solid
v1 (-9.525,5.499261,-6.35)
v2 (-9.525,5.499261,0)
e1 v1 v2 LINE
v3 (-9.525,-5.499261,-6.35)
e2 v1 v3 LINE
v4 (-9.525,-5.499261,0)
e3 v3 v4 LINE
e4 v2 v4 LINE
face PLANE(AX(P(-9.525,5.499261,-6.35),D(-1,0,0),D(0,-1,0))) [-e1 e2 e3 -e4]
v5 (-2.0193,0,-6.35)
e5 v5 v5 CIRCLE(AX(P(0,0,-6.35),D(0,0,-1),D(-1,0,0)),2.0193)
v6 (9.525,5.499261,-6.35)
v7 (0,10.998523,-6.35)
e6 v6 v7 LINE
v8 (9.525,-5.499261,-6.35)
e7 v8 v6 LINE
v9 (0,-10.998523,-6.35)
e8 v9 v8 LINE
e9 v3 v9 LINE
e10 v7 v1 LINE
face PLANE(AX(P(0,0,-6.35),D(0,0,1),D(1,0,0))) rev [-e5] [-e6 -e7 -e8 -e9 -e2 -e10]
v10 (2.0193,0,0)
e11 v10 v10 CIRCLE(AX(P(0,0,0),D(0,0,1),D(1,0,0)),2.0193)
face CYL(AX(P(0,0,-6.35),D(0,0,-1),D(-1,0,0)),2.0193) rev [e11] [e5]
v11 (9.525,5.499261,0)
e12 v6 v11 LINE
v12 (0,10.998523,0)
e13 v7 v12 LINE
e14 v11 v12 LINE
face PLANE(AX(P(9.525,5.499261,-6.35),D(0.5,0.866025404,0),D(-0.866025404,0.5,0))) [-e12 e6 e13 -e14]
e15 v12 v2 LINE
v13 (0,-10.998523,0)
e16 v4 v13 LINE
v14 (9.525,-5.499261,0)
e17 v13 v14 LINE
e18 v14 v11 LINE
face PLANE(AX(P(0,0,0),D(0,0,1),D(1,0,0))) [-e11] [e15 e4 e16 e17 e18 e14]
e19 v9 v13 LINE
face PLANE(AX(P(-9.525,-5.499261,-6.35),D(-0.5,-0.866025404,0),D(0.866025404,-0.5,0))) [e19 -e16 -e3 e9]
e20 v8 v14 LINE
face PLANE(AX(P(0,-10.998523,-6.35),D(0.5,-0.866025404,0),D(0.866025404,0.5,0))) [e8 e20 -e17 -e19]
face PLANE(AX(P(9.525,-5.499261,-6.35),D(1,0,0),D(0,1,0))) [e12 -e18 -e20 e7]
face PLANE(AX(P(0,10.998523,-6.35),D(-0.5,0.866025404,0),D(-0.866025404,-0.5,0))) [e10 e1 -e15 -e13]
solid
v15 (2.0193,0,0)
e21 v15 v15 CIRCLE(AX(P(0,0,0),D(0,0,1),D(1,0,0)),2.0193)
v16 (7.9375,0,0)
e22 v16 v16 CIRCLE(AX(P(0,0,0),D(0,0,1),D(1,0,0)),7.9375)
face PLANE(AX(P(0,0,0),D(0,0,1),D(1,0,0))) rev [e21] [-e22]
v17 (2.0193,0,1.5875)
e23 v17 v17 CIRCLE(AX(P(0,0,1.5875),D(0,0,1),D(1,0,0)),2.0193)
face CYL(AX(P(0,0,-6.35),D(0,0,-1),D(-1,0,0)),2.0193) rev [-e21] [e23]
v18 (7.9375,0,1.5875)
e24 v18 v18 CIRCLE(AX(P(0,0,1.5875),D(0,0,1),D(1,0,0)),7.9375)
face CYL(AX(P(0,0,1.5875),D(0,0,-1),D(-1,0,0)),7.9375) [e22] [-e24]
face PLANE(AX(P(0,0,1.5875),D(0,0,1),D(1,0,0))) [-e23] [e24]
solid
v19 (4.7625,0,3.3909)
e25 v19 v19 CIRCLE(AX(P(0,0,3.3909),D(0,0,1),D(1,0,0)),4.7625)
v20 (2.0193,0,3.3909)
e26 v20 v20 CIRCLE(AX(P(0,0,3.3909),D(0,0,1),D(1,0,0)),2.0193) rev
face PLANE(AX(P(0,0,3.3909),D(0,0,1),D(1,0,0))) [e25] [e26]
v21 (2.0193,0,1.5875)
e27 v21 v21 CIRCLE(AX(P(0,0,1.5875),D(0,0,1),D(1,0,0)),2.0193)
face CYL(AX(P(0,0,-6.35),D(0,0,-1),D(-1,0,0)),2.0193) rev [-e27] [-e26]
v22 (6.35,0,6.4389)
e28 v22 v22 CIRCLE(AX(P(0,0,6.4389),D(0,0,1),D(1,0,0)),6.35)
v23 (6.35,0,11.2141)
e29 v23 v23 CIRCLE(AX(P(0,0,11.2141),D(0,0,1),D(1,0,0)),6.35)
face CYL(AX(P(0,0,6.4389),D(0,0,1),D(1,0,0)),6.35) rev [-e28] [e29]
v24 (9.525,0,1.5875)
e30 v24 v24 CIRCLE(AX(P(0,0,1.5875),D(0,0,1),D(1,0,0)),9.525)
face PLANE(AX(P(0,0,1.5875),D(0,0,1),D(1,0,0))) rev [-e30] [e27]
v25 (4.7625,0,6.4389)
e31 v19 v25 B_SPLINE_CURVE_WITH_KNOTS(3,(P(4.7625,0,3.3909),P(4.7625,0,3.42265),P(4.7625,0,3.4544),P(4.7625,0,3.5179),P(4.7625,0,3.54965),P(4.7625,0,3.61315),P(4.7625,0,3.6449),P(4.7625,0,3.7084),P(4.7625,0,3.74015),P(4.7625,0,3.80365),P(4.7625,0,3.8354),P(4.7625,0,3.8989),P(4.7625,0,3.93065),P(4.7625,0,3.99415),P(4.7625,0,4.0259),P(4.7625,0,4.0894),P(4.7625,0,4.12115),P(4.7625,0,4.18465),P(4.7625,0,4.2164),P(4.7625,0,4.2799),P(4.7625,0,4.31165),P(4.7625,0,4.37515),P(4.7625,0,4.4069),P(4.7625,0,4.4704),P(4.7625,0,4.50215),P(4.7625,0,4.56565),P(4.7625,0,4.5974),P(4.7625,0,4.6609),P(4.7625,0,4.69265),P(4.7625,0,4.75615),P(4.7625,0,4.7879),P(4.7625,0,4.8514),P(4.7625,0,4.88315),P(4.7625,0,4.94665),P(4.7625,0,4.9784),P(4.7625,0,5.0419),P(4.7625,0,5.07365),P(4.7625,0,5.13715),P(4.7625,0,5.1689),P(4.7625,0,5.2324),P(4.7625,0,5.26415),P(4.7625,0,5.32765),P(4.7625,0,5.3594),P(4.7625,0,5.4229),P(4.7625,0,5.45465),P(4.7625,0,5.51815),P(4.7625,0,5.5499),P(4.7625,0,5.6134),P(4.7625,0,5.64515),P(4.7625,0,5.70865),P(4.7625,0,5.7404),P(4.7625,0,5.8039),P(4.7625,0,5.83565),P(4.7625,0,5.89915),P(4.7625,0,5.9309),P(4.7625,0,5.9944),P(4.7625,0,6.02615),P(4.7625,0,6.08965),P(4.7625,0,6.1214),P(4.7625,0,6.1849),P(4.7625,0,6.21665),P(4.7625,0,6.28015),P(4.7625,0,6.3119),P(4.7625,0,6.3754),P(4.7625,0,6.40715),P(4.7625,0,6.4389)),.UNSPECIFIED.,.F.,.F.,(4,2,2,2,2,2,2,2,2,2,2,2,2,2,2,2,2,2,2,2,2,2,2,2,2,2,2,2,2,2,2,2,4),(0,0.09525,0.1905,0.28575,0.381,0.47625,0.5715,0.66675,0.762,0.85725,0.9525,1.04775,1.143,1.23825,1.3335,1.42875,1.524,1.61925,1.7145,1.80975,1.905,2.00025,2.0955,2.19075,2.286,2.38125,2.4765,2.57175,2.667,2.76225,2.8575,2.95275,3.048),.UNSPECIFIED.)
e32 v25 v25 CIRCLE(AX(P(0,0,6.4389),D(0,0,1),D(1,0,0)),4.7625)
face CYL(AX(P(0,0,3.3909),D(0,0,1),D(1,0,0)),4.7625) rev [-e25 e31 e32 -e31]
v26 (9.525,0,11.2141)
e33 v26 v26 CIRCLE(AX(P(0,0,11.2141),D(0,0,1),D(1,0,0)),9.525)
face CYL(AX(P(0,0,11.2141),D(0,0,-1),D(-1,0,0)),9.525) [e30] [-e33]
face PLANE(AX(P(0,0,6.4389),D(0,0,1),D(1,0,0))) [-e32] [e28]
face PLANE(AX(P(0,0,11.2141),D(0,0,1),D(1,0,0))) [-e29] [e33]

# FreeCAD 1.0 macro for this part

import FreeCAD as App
import Part
import Sketcher

V = App.Vector
Q = App.Units.Quantity

doc = App.newDocument("Part")
params = doc.addObject("Spreadsheet::Sheet", "Params")
for row, (alias, value) in enumerate([
    ("pad1_length", "0.25 in"),
    ("sketch2_diameter", "0.625 in"),
    ("pad2_length", "0.0625 in"),
    ("sketch3_diameter", "0.75 in"),
    ("pad3_length", "0.379 in"),
    ("revolution_angle", "360 deg"),
    ("sketch5_diameter", "0.5 in"),
    ("pocket1_length", "0.188 in"),
    ("sketch6_diameter", "0.375 in"),
    ("pocket2_length", "0.12 in"),
], start=1):
    params.set(f"A{row}", alias)
    params.set(f"B{row}", "=" + value)
    params.setAlias(f"B{row}", alias)

body = doc.addObject("PartDesign::Body", "Body")

sketch1 = doc.addObject("Sketcher::SketchObject", "Sketch")
body.addObject(sketch1)
sketch1.AttachmentSupport = (doc.XY_Plane, [""])
sketch1.MapMode = "FlatFace"
sketch1.addGeometry(Part.LineSegment(V(0, -11, 0), V(10, -5, 0)), False)
sketch1.addGeometry(Part.LineSegment(V(10, -5, 0), V(10, 5, 0)), False)
sketch1.addGeometry(Part.LineSegment(V(10, 5, 0), V(0, 11, 0)), False)
sketch1.addGeometry(Part.LineSegment(V(0, 11, 0), V(-10, 5, 0)), False)
sketch1.addGeometry(Part.LineSegment(V(-10, 5, 0), V(-10, -5, 0)), False)
sketch1.addGeometry(Part.LineSegment(V(-10, -5, 0), V(0, -11, 0)), False)
sketch1.addConstraint(Sketcher.Constraint("Coincident", 0, 2, 1, 1))
sketch1.addConstraint(Sketcher.Constraint("Coincident", 1, 2, 2, 1))
sketch1.addConstraint(Sketcher.Constraint("Coincident", 2, 2, 3, 1))
sketch1.addConstraint(Sketcher.Constraint("Coincident", 3, 2, 4, 1))
sketch1.addConstraint(Sketcher.Constraint("Coincident", 4, 2, 5, 1))
sketch1.addConstraint(Sketcher.Constraint("Coincident", 5, 2, 0, 1))
sketch1.addConstraint(Sketcher.Constraint("Vertical", 1))
sketch1.addConstraint(Sketcher.Constraint("Vertical", 4))
sketch1.addConstraint(Sketcher.Constraint("Symmetric", 0, 2, 3, 2, -1, 1))
sketch1.addConstraint(Sketcher.Constraint("Symmetric", 2, 2, 5, 2, -1, 1))
sketch1.addConstraint(Sketcher.Constraint("PointOnObject", 2, 2, -2))
sketch1.addConstraint(Sketcher.Constraint("Parallel", 2, 5))
sketch1.addConstraint(Sketcher.Constraint("Horizontal", 1, 2, 3, 2))
sketch1.addConstraint(Sketcher.Constraint("Angle", 0, Q("30 deg")))
sketch1.addConstraint(Sketcher.Constraint("DistanceX", 3, 2, 1, 2, Q("0.75 in")))
sketch1.addConstraint(Sketcher.Constraint("DistanceY", 1, 1, 1, 2, Q("10.998523 mm")))
pad1 = doc.addObject("PartDesign::Pad", "Pad")
body.addObject(pad1)
pad1.Profile = sketch1
pad1.setExpression("Length", "Params.pad1_length")
pad1.Reversed = True
body2 = doc.addObject("PartDesign::Body", "Body001")

sketch2 = doc.addObject("Sketcher::SketchObject", "Sketch001")
body2.addObject(sketch2)
sketch2.AttachmentSupport = (doc.getObject("XY_Plane001"), [""])
sketch2.MapMode = "FlatFace"
sketch2.addGeometry(Part.Circle(V(0, 0, 0), V(0, 0, 1), 8), False)
sketch2.addConstraint(Sketcher.Constraint("Coincident", 0, 3, -1, 1))
sketch2.addConstraint(Sketcher.Constraint("Diameter", 0, Q("0.625 in")))
sketch2.setExpression("Constraints[1]", "Params.sketch2_diameter")
pad2 = doc.addObject("PartDesign::Pad", "Pad001")
body2.addObject(pad2)
pad2.Profile = sketch2
pad2.setExpression("Length", "Params.pad2_length")
body3 = doc.addObject("PartDesign::Body", "Body002")

sketch3 = doc.addObject("Sketcher::SketchObject", "Sketch002")
body3.addObject(sketch3)
sketch3.AttachmentSupport = (doc.getObject("XY_Plane002"), [""])
sketch3.MapMode = "FlatFace"
sketch3.AttachmentOffset = App.Placement(V(0, 0, 0.0625 * 25.4), App.Rotation())
sketch3.addGeometry(Part.Circle(V(0, 0, 0), V(0, 0, 1), 10), False)
sketch3.addConstraint(Sketcher.Constraint("Coincident", 0, 3, -1, 1))
sketch3.addConstraint(Sketcher.Constraint("Diameter", 0, Q("0.75 in")))
sketch3.setExpression("Constraints[1]", "Params.sketch3_diameter")
pad3 = doc.addObject("PartDesign::Pad", "Pad002")
body3.addObject(pad3)
pad3.Profile = sketch3
pad3.setExpression("Length", "Params.pad3_length")
body4 = doc.addObject("PartDesign::Body", "Body003")

sketch4 = doc.addObject("Sketcher::SketchObject", "Sketch003")
body4.addObject(sketch4)
sketch4.AttachmentSupport = (doc.getObject("YZ_Plane003"), [""])
sketch4.MapMode = "FlatFace"
sketch4.addGeometry(Part.LineSegment(V(0, 11.2, 0), V(0, -6.3, 0)), False)
sketch4.addGeometry(Part.LineSegment(V(0, -6.3, 0), V(2, -6.3, 0)), False)
sketch4.addGeometry(Part.LineSegment(V(2, -6.3, 0), V(2, 11.2, 0)), False)
sketch4.addGeometry(Part.LineSegment(V(2, 11.2, 0), V(0, 11.2, 0)), False)
sketch4.addConstraint(Sketcher.Constraint("Coincident", 0, 2, 1, 1))
sketch4.addConstraint(Sketcher.Constraint("Coincident", 1, 2, 2, 1))
sketch4.addConstraint(Sketcher.Constraint("Coincident", 2, 2, 3, 1))
sketch4.addConstraint(Sketcher.Constraint("Coincident", 3, 2, 0, 1))
sketch4.addConstraint(Sketcher.Constraint("Vertical", 0))
sketch4.addConstraint(Sketcher.Constraint("Horizontal", 1))
sketch4.addConstraint(Sketcher.Constraint("Vertical", 2))
sketch4.addConstraint(Sketcher.Constraint("Horizontal", 3))
sketch4.addConstraint(Sketcher.Constraint("PointOnObject", 0, 2, -2))
sketch4.addConstraint(Sketcher.Constraint("DistanceY", 0, 2, -1, 1, Q("0.25 in")))
sketch4.addConstraint(Sketcher.Constraint("DistanceX", 1, 1, 1, 2, Q("0.0795 in")))
sketch4.addConstraint(Sketcher.Constraint("DistanceY", 0, 2, 0, 1, Q("0.6915 in")))
revolution = doc.addObject("PartDesign::Revolution", "Revolution")
body4.addObject(revolution)
revolution.Profile = sketch4
revolution.ReferenceAxis = (sketch4, ["V_Axis"])
revolution.setExpression("Angle", "Params.revolution_angle")
doc.recompute()

body5 = doc.addObject("PartDesign::Body", "Body004")
body5.BaseFeature = body4
boolean = doc.addObject("PartDesign::Boolean", "Boolean")
body.addObject(boolean)
boolean.Type = "Cut"
boolean.addObjects([body5])
doc.recompute()

body6 = doc.addObject("PartDesign::Body", "Body005")
body6.BaseFeature = body4
boolean2 = doc.addObject("PartDesign::Boolean", "Boolean001")
body2.addObject(boolean2)
boolean2.Type = "Cut"
boolean2.addObjects([body6])
doc.recompute()

boolean3 = doc.addObject("PartDesign::Boolean", "Boolean002")
body3.addObject(boolean3)
boolean3.Type = "Cut"
boolean3.addObjects([body4])

sketch5 = doc.addObject("Sketcher::SketchObject", "Sketch004")
body3.addObject(sketch5)
sketch5.AttachmentSupport = (doc.getObject("XY_Plane002"), [""])
sketch5.MapMode = "FlatFace"
sketch5.AttachmentOffset = App.Placement(V(0, 0, 0.4415 * 25.4), App.Rotation())
sketch5.addGeometry(Part.Circle(V(0, 0, 0), V(0, 0, 1), 6), False)
sketch5.addConstraint(Sketcher.Constraint("Coincident", 0, 3, -1, 1))
sketch5.addConstraint(Sketcher.Constraint("Diameter", 0, Q("0.5 in")))
sketch5.setExpression("Constraints[1]", "Params.sketch5_diameter")
pocket1 = doc.addObject("PartDesign::Pocket", "Pocket")
body3.addObject(pocket1)
pocket1.Profile = sketch5
pocket1.setExpression("Length", "Params.pocket1_length")

sketch6 = doc.addObject("Sketcher::SketchObject", "Sketch005")
body3.addObject(sketch6)
sketch6.AttachmentSupport = (doc.getObject("XY_Plane002"), [""])
sketch6.MapMode = "FlatFace"
sketch6.AttachmentOffset = App.Placement(V(0, 0, 0.2535 * 25.4), App.Rotation())
sketch6.addGeometry(Part.Circle(V(0, 0, 0), V(0, 0, 1), 4.8), False)
sketch6.addConstraint(Sketcher.Constraint("Coincident", 0, 3, -1, 1))
sketch6.addConstraint(Sketcher.Constraint("Diameter", 0, Q("0.375 in")))
sketch6.setExpression("Constraints[1]", "Params.sketch6_diameter")
pocket2 = doc.addObject("PartDesign::Pocket", "Pocket001")
body3.addObject(pocket2)
pocket2.Profile = sketch6
pocket2.setExpression("Length", "Params.pocket2_length")

doc.recompute()
